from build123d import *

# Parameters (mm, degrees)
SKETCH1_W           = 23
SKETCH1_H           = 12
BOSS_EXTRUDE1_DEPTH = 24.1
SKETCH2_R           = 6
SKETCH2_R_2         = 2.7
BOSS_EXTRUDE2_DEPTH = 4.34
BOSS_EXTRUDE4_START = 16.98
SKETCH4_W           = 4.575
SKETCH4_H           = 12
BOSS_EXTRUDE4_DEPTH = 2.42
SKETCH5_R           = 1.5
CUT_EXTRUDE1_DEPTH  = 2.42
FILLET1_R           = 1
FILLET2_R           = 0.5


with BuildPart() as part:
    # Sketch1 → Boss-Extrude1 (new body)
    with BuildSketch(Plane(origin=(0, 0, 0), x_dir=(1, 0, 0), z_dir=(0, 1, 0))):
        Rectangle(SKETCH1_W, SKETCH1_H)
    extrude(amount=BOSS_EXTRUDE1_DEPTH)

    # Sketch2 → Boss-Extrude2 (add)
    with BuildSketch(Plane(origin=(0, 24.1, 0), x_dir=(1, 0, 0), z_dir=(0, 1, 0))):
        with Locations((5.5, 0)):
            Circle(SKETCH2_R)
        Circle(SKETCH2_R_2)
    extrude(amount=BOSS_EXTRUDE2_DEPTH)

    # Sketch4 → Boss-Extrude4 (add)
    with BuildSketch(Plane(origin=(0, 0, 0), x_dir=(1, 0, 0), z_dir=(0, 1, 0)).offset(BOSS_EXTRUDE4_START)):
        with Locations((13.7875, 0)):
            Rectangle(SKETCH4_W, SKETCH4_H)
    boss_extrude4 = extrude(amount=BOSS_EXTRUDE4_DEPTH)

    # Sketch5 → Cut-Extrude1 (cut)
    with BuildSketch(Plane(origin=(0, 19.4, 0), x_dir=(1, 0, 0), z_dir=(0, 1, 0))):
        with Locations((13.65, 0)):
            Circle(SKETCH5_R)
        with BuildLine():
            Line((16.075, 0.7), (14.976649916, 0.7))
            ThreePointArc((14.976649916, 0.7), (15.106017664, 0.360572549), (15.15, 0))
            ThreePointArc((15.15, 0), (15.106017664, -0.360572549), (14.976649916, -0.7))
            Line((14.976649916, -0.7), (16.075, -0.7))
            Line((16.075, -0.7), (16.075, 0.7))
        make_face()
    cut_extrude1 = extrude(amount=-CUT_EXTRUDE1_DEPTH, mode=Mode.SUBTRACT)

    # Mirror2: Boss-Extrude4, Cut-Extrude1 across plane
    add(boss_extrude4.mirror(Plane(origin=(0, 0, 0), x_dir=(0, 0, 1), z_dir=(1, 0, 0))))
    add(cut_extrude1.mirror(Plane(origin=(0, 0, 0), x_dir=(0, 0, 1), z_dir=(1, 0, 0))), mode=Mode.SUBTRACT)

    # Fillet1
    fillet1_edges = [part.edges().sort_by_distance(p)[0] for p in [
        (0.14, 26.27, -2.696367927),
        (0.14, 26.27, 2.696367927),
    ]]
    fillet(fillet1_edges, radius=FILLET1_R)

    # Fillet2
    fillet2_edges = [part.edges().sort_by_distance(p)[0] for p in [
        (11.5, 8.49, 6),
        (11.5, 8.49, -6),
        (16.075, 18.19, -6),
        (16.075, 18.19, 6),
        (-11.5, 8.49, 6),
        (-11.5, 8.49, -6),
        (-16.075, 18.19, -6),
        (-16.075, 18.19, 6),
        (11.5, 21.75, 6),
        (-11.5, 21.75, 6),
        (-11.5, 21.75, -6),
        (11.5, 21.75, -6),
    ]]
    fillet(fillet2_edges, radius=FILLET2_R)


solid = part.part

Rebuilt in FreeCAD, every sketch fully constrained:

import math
import FreeCAD as App
import Part
import Sketcher

V = App.Vector
Q = App.Units.Quantity


def edges_at(feature, points):
    """Names of the edges that pass closest to the given points."""
    edges = feature.Shape.Edges
    near = lambda p: min(range(len(edges)), key=lambda i: edges[i].distToShape(Part.Vertex(*p))[0])
    return sorted({f"Edge{near(p) + 1}" for p in points})

doc = App.newDocument("Part")
params = doc.addObject("Spreadsheet::Sheet", "Params")
for row, (alias, value) in enumerate([
    ("sketch1_width", "23 mm"),
    ("sketch1_height", "12 mm"),
    ("pad1_length", "24.1 mm"),
    ("sketch2_radius", "6 mm"),
    ("sketch2_radius2", "2.7 mm"),
    ("pad2_length", "4.34 mm"),
    ("sketch3_height", "12 mm"),
    ("pad3_length", "2.42 mm"),
    ("sketch4_radius", "1.5 mm"),
    ("sketch4_height", "1.4 mm"),
    ("pocket1_length", "2.42 mm"),
    ("fillet_radius", "1 mm"),
    ("fillet2_radius", "0.5 mm"),
], start=1):
    params.set(f"A{row}", alias)
    params.set(f"B{row}", "=" + value)
    params.setAlias(f"B{row}", alias)

body = doc.addObject("PartDesign::Body", "Body")

# Sketch on XZ plane
sketch1 = body.newObject("Sketcher::SketchObject", "Sketch")
sketch1.AttachmentSupport = (doc.getObject("XZ_Plane"), [""])
sketch1.MapMode = "FlatFace"
sketch1.addGeometry(Part.LineSegment(V(-12, -6, 0), V(-12, 6, 0)), False)
sketch1.addGeometry(Part.LineSegment(V(-12, 6, 0), V(12, 6, 0)), False)
sketch1.addGeometry(Part.LineSegment(V(12, 6, 0), V(12, -6, 0)), False)
sketch1.addGeometry(Part.LineSegment(V(12, -6, 0), V(-12, -6, 0)), False)
sketch1.addConstraint(Sketcher.Constraint("Coincident", 0, 2, 1, 1))
sketch1.addConstraint(Sketcher.Constraint("Coincident", 1, 2, 2, 1))
sketch1.addConstraint(Sketcher.Constraint("Coincident", 2, 2, 3, 1))
sketch1.addConstraint(Sketcher.Constraint("Coincident", 3, 2, 0, 1))
sketch1.addConstraint(Sketcher.Constraint("Vertical", 0))
sketch1.addConstraint(Sketcher.Constraint("Horizontal", 1))
sketch1.addConstraint(Sketcher.Constraint("Vertical", 2))
sketch1.addConstraint(Sketcher.Constraint("Horizontal", 3))
sketch1.addConstraint(Sketcher.Constraint("Symmetric", 0, 2, 2, 2, -1, 1))
sketch1.addConstraint(Sketcher.Constraint("DistanceX", 1, 1, 1, 2, Q("23 mm")))
sketch1.addConstraint(Sketcher.Constraint("DistanceY", 0, 1, 0, 2, Q("12 mm")))
sketch1.setExpression("Constraints[9]", "Params.sketch1_width")
sketch1.setExpression("Constraints[10]", "Params.sketch1_height")
pad1 = body.newObject("PartDesign::Pad", "Pad")
pad1.Profile = sketch1
pad1.setExpression("Length", "Params.pad1_length")
pad1.Reversed = True

# Sketch on XZ plane
sketch2 = body.newObject("Sketcher::SketchObject", "Sketch001")
sketch2.AttachmentSupport = (doc.getObject("XZ_Plane"), [""])
sketch2.MapMode = "FlatFace"
sketch2.AttachmentOffset = App.Placement(V(0, 0, -24.1), App.Rotation())
sketch2.addGeometry(Part.ArcOfCircle(Part.Circle(V(0, 0, 0), V(0, 0, 1), 2.7), math.radians(87), math.radians(273)), False)
sketch2.addGeometry(Part.ArcOfCircle(Part.Circle(V(5.5, 0, 0), V(0, 0, 1), 6), math.radians(-153), math.radians(153)), False)
sketch2.addConstraint(Sketcher.Constraint("Coincident", 0, 1, 1, 2))
sketch2.addConstraint(Sketcher.Constraint("Coincident", 1, 1, 0, 2))
sketch2.addConstraint(Sketcher.Constraint("Coincident", 0, 3, -1, 1))
sketch2.addConstraint(Sketcher.Constraint("PointOnObject", 1, 3, -1))
sketch2.addConstraint(Sketcher.Constraint("Radius", 1, Q("6 mm")))
sketch2.addConstraint(Sketcher.Constraint("Radius", 0, Q("2.7 mm")))
sketch2.addConstraint(Sketcher.Constraint("DistanceX", -1, 1, 1, 3, Q("5.5 mm")))
sketch2.setExpression("Constraints[4]", "Params.sketch2_radius")
sketch2.setExpression("Constraints[5]", "Params.sketch2_radius2")
pad2 = body.newObject("PartDesign::Pad", "Pad001")
pad2.Profile = sketch2
pad2.setExpression("Length", "Params.pad2_length")
pad2.Reversed = True

# Sketch on XZ plane
sketch3 = body.newObject("Sketcher::SketchObject", "Sketch002")
sketch3.AttachmentSupport = (doc.getObject("XZ_Plane"), [""])
sketch3.MapMode = "FlatFace"
sketch3.AttachmentOffset = App.Placement(V(0, 0, -16.98), App.Rotation())
sketch3.addGeometry(Part.LineSegment(V(11.5, -6, 0), V(11.5, 6, 0)), False)
sketch3.addGeometry(Part.LineSegment(V(11.5, 6, 0), V(16.1, 6, 0)), False)
sketch3.addGeometry(Part.LineSegment(V(16.1, 6, 0), V(16.1, -6, 0)), False)
sketch3.addGeometry(Part.LineSegment(V(16.1, -6, 0), V(11.5, -6, 0)), False)
sketch3.addConstraint(Sketcher.Constraint("Coincident", 0, 2, 1, 1))
sketch3.addConstraint(Sketcher.Constraint("Coincident", 1, 2, 2, 1))
sketch3.addConstraint(Sketcher.Constraint("Coincident", 2, 2, 3, 1))
sketch3.addConstraint(Sketcher.Constraint("Coincident", 3, 2, 0, 1))
sketch3.addConstraint(Sketcher.Constraint("Vertical", 0))
sketch3.addConstraint(Sketcher.Constraint("Horizontal", 1))
sketch3.addConstraint(Sketcher.Constraint("Vertical", 2))
sketch3.addConstraint(Sketcher.Constraint("Horizontal", 3))
sketch3.addConstraint(Sketcher.Constraint("DistanceY", 0, 1, 0, 2, Q("12 mm")))
sketch3.addConstraint(Sketcher.Constraint("DistanceY", -1, 1, 0, 2, Q("6 mm")))
sketch3.addConstraint(Sketcher.Constraint("DistanceX", -1, 1, 0, 2, Q("11.5 mm")))
sketch3.addConstraint(Sketcher.Constraint("DistanceX", 1, 1, 1, 2, Q("4.575 mm")))
sketch3.setExpression("Constraints[8]", "Params.sketch3_height")
pad3 = body.newObject("PartDesign::Pad", "Pad002")
pad3.Profile = sketch3
pad3.setExpression("Length", "Params.pad3_length")
pad3.Reversed = True

# Sketch on XZ plane
sketch4 = body.newObject("Sketcher::SketchObject", "Sketch003")
sketch4.AttachmentSupport = (doc.getObject("XZ_Plane"), [""])
sketch4.MapMode = "FlatFace"
sketch4.AttachmentOffset = App.Placement(V(0, 0, -19.4), App.Rotation())
sketch4.addGeometry(Part.ArcOfCircle(Part.Circle(V(13.7, 0, 0), V(0, 0, 1), 1.5), math.radians(28), math.radians(332)), False)
sketch4.addGeometry(Part.LineSegment(V(15, 0.7, 0), V(16.1, 0.7, 0)), False)
sketch4.addGeometry(Part.LineSegment(V(16.1, 0.7, 0), V(16.1, -0.7, 0)), False)
sketch4.addGeometry(Part.LineSegment(V(16.1, -0.7, 0), V(15, -0.7, 0)), False)
sketch4.addConstraint(Sketcher.Constraint("Coincident", 0, 1, 1, 1))
sketch4.addConstraint(Sketcher.Constraint("Coincident", 1, 2, 2, 1))
sketch4.addConstraint(Sketcher.Constraint("Coincident", 2, 2, 3, 1))
sketch4.addConstraint(Sketcher.Constraint("Coincident", 3, 2, 0, 2))
sketch4.addConstraint(Sketcher.Constraint("Horizontal", 1))
sketch4.addConstraint(Sketcher.Constraint("Vertical", 2))
sketch4.addConstraint(Sketcher.Constraint("Horizontal", 3))
sketch4.addConstraint(Sketcher.Constraint("Symmetric", 0, 1, 3, 2, -1))
sketch4.addConstraint(Sketcher.Constraint("Radius", 0, Q("1.5 mm")))
sketch4.addConstraint(Sketcher.Constraint("DistanceY", 2, 2, 2, 1, Q("1.4 mm")))
sketch4.addConstraint(Sketcher.Constraint("DistanceX", -1, 1, 0, 3, Q("13.65 mm")))
sketch4.addConstraint(Sketcher.Constraint("DistanceX", -1, 1, 1, 2, Q("16.075 mm")))
sketch4.setExpression("Constraints[8]", "Params.sketch4_radius")
sketch4.setExpression("Constraints[9]", "Params.sketch4_height")
pocket1 = body.newObject("PartDesign::Pocket", "Pocket")
pocket1.Profile = sketch4
pocket1.setExpression("Length", "Params.pocket1_length")
pocket1.Reversed = True
doc.recompute()

mirrored = body.newObject("PartDesign::Mirrored", "Mirrored")
mirrored.Originals = [pad3, pocket1]
mirrored.MirrorPlane = (doc.getObject("YZ_Plane"), [""])
body.Tip = mirrored
doc.recompute()

fillet = body.newObject("PartDesign::Fillet", "Fillet")
fillet.Base = (mirrored, edges_at(mirrored, [(0.14, 26.27, -2.696), (0.14, 26.27, 2.696)]))
fillet.setExpression("Radius", "Params.fillet_radius")
doc.recompute()

fillet2 = body.newObject("PartDesign::Fillet", "Fillet001")
fillet2.Base = (fillet, edges_at(fillet, [
    (11.5, 8.49, 6),
    (11.5, 8.49, -6),
    (16.075, 18.19, -6),
    (16.075, 18.19, 6),
    (-11.5, 8.49, 6),
    (-11.5, 8.49, -6),
    (-16.075, 18.19, -6),
    (-16.075, 18.19, 6),
    (11.5, 21.75, 6),
    (-11.5, 21.75, 6),
    (-11.5, 21.75, -6),
    (11.5, 21.75, -6),
]))
fillet2.setExpression("Radius", "Params.fillet2_radius")

doc.recompute()
